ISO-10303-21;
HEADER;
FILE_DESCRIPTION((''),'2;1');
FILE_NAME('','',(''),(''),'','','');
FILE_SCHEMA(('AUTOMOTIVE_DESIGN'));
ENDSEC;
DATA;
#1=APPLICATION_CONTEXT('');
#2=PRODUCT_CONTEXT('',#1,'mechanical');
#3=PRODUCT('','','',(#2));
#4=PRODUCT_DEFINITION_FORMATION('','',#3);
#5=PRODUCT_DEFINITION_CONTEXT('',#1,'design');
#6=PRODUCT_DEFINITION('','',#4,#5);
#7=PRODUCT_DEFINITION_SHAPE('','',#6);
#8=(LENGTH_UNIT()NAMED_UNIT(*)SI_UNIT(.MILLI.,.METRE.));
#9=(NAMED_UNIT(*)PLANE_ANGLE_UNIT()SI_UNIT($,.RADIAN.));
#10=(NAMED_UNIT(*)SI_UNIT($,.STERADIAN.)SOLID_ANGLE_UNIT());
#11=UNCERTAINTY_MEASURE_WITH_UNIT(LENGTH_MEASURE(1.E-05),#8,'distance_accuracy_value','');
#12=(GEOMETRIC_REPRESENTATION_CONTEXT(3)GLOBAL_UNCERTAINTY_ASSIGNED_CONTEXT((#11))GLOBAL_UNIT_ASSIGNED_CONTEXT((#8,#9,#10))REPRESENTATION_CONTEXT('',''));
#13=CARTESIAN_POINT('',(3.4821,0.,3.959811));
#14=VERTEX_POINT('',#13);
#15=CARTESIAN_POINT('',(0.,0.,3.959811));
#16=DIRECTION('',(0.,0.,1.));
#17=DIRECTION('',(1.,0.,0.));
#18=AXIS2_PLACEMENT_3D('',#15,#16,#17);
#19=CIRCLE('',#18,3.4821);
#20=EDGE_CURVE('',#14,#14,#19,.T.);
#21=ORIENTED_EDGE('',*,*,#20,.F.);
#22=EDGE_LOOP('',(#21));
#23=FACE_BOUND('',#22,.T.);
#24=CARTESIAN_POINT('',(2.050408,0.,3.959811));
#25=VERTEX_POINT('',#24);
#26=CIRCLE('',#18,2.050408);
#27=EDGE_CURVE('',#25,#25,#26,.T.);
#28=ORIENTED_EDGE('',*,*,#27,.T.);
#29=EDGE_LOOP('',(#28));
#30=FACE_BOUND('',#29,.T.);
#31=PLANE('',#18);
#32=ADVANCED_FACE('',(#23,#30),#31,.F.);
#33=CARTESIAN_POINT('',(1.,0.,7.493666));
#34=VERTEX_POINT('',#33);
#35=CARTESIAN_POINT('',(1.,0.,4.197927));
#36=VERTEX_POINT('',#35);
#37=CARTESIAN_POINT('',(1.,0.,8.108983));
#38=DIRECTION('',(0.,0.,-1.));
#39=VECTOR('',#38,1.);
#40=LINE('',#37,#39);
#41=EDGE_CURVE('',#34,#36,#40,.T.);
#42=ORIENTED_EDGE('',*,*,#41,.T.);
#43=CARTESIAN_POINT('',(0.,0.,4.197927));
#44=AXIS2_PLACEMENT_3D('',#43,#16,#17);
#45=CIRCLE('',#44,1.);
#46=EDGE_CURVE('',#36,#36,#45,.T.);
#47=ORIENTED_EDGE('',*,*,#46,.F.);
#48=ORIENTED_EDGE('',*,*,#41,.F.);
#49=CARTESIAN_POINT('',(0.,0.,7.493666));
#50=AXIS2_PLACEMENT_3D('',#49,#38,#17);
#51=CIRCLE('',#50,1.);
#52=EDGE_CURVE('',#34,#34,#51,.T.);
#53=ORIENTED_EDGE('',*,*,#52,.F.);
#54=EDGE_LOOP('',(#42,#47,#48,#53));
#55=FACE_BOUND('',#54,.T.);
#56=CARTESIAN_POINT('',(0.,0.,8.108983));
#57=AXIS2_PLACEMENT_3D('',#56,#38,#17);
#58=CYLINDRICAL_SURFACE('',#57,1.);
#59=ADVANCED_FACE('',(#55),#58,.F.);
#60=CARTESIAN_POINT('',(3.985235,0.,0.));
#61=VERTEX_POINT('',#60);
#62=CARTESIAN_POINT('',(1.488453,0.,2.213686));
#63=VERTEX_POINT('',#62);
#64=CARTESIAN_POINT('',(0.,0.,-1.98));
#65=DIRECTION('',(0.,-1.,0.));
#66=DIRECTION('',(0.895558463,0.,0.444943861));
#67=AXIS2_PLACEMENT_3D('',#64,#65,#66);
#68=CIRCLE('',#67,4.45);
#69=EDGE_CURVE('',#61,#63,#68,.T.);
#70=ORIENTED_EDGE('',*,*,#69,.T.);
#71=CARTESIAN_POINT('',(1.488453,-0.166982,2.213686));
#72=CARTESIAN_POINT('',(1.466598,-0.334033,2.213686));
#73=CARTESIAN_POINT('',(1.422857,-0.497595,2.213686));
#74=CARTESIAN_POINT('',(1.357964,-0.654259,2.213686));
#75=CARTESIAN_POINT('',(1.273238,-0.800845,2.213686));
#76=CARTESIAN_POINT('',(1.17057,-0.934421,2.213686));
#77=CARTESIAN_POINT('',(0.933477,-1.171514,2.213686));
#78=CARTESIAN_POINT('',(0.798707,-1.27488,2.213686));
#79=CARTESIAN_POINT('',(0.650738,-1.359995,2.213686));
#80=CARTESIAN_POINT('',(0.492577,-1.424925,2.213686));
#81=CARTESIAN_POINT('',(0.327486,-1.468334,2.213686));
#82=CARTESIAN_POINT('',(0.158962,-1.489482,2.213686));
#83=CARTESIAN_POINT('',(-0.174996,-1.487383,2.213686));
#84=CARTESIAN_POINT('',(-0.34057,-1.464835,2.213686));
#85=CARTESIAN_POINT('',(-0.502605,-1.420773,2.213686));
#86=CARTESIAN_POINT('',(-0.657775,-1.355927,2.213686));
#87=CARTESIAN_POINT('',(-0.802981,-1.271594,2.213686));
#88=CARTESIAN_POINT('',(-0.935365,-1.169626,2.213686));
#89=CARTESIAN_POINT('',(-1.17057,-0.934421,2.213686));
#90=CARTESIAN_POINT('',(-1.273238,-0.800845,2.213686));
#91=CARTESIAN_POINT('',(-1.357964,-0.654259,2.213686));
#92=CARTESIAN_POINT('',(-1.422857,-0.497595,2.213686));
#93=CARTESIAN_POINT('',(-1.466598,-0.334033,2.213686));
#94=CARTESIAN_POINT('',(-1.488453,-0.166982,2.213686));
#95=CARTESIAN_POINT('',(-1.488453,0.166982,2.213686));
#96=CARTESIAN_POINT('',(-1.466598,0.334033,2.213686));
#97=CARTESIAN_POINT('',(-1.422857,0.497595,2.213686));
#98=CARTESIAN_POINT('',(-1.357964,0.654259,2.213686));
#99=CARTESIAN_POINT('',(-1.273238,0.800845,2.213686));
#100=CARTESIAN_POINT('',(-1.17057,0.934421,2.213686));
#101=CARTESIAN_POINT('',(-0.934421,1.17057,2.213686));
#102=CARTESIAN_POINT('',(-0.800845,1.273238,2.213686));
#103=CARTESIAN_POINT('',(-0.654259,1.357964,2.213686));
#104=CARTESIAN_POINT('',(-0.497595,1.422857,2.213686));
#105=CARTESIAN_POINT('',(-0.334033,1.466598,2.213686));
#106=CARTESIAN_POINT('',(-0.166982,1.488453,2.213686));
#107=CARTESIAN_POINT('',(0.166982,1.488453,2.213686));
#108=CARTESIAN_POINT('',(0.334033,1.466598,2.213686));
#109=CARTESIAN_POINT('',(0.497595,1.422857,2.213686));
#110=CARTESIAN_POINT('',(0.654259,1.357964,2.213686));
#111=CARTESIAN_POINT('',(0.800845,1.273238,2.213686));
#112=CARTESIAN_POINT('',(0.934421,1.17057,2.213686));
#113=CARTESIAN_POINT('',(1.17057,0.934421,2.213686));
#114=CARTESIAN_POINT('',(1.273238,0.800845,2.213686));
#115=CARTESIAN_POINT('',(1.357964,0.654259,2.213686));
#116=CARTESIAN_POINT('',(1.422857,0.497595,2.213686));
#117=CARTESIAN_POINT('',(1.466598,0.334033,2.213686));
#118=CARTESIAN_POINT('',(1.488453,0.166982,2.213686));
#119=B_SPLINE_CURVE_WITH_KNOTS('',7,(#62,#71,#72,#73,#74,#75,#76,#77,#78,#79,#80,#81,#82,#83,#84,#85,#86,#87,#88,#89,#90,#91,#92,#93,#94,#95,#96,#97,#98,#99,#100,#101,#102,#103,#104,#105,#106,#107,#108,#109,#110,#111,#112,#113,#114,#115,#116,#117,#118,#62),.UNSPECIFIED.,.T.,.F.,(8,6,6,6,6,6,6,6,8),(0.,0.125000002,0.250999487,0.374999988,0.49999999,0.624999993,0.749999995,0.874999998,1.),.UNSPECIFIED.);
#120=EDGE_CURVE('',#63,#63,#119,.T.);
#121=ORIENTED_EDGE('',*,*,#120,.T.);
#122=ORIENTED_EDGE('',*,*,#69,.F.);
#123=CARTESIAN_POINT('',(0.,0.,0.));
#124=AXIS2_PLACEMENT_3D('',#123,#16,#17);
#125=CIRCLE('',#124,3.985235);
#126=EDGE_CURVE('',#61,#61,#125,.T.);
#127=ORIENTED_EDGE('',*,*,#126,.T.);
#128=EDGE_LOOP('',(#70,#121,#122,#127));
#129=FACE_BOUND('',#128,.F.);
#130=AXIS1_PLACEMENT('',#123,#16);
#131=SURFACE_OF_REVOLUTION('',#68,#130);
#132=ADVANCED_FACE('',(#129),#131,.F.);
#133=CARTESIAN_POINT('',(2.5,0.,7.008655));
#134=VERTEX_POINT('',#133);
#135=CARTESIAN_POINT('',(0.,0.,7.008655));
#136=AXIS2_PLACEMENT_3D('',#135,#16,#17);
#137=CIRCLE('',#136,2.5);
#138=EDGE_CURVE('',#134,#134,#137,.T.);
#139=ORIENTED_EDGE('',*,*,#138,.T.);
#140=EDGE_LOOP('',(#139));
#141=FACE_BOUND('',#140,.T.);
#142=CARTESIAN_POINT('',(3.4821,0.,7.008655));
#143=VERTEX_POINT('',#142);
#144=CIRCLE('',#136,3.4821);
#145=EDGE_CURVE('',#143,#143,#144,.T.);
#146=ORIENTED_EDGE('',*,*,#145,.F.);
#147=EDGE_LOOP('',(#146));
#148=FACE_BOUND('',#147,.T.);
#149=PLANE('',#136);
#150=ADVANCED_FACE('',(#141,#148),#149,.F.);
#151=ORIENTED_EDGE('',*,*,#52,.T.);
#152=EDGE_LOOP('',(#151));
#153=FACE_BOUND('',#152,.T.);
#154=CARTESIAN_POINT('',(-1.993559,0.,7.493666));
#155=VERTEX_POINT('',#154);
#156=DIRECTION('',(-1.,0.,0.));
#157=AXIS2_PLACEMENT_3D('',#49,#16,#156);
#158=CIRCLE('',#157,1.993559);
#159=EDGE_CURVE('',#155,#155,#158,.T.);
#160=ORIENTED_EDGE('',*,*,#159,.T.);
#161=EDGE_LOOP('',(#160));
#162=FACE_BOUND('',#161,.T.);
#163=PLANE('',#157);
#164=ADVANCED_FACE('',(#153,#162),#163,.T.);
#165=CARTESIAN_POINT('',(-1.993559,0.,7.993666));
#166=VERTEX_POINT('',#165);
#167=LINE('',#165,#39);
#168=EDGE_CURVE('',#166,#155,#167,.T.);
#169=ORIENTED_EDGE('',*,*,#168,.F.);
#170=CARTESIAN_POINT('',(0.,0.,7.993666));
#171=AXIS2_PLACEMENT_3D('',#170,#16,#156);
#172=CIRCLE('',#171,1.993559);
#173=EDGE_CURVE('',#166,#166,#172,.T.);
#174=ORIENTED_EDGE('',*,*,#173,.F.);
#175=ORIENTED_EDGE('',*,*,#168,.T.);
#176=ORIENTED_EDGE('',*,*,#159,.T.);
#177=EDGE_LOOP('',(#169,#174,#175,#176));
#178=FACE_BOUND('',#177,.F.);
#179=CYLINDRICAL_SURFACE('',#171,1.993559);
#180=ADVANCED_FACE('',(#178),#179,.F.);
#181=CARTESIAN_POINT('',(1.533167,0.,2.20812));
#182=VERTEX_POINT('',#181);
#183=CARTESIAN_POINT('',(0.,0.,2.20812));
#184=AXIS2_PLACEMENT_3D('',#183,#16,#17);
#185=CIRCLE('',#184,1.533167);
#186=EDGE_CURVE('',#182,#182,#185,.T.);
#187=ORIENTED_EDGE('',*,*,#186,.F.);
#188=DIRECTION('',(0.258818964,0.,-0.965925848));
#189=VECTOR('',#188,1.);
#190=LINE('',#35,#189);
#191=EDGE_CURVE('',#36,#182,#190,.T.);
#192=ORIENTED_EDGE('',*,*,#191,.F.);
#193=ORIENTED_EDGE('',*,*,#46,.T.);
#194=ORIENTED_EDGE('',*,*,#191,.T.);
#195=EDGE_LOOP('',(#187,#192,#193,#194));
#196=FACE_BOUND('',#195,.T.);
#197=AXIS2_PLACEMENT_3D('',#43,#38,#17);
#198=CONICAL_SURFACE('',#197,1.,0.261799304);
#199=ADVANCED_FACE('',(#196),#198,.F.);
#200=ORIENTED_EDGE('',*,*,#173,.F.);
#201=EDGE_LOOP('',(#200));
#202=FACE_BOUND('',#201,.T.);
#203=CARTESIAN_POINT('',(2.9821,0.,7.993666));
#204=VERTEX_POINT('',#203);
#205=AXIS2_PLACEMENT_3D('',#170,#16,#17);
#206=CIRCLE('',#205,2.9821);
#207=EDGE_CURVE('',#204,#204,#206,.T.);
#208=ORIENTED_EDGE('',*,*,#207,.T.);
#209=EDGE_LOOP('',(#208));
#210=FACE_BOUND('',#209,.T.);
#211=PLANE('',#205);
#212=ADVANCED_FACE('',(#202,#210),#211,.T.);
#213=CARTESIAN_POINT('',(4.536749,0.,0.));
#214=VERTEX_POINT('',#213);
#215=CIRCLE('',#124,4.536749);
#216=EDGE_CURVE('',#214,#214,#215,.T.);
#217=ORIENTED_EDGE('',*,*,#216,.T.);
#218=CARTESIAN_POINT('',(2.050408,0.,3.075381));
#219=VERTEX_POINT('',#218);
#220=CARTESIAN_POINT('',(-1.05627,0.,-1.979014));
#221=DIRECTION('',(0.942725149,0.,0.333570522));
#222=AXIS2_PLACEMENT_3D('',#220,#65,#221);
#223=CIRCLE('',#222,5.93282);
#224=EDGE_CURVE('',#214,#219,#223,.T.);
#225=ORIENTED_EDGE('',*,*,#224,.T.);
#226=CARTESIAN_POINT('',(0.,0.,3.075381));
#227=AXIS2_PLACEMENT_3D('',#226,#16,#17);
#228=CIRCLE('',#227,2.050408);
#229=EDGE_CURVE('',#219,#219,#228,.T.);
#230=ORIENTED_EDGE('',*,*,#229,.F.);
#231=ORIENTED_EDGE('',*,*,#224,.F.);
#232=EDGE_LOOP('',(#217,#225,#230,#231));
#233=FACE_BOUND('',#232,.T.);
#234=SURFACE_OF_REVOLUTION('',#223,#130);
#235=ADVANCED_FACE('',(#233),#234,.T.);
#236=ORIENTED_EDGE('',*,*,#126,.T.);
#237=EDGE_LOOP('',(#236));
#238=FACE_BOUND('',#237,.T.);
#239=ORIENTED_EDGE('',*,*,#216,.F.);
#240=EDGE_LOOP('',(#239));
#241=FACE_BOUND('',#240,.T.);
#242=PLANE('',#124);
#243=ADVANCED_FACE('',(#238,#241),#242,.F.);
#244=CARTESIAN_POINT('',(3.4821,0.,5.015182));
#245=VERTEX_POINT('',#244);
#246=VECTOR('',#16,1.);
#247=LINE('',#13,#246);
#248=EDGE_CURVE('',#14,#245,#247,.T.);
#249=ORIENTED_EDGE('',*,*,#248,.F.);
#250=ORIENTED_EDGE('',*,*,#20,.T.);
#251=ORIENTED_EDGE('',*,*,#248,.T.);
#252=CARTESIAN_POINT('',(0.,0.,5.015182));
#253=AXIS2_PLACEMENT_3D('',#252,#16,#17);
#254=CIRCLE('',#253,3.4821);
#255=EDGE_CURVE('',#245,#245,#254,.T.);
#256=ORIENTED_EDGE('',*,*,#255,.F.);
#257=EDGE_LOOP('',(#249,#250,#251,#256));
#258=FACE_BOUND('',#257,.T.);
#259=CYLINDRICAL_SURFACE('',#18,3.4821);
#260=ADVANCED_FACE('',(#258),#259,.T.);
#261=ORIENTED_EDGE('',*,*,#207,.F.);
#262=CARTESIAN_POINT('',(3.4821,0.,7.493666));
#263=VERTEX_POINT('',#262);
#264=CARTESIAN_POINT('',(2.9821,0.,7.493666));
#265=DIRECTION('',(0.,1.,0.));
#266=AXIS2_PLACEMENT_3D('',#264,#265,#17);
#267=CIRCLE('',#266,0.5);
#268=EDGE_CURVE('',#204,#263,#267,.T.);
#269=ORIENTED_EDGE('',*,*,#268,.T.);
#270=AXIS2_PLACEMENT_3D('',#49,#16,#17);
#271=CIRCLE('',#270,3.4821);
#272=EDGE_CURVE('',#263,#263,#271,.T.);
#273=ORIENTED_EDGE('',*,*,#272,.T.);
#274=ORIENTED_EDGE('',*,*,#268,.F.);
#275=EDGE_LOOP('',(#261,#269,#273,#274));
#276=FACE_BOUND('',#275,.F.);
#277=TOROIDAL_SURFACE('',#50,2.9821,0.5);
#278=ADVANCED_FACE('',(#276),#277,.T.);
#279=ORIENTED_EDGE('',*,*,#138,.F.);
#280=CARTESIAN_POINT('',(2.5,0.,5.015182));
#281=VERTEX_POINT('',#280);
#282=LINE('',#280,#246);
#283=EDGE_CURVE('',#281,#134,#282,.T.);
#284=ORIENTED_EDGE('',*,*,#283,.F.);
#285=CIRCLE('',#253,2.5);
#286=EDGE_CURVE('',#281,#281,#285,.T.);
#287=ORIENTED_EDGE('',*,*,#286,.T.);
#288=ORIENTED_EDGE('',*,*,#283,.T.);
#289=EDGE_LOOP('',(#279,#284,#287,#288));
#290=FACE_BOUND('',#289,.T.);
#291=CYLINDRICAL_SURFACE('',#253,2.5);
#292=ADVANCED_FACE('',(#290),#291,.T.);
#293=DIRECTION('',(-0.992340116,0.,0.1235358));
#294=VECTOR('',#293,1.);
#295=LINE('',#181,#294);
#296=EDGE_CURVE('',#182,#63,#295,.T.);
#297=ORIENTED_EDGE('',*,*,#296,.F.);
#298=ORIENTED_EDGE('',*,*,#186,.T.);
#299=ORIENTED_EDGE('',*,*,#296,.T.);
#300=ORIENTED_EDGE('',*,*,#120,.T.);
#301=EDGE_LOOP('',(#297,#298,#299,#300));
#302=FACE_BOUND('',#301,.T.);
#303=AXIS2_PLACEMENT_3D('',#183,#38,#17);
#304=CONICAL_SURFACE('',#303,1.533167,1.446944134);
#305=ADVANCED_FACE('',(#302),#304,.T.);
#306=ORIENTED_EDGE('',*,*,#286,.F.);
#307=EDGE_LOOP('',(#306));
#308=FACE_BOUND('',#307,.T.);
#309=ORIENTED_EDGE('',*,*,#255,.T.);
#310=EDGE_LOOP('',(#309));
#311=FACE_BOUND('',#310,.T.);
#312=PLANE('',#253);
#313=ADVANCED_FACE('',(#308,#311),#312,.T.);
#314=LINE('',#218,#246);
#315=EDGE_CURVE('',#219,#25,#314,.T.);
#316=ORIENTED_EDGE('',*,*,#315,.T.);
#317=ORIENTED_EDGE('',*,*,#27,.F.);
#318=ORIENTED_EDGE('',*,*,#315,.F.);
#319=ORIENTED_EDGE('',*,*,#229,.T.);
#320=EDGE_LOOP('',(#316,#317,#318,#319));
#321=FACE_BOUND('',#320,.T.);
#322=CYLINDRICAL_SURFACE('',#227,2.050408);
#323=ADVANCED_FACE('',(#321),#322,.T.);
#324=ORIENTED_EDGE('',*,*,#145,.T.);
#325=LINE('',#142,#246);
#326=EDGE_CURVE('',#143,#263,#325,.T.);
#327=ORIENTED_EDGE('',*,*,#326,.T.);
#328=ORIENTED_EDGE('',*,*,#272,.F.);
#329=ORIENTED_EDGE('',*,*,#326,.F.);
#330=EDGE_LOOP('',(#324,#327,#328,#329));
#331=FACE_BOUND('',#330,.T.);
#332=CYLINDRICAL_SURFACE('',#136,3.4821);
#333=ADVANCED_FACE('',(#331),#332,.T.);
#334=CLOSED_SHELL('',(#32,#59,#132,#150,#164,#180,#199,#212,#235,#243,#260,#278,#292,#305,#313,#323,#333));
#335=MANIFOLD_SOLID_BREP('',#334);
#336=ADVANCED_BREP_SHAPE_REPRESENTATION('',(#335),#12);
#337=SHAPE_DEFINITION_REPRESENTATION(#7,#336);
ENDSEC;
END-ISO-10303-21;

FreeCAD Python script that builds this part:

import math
import FreeCAD as App
import Part
import Sketcher
Q = App.Units.Quantity


def edges_at(feature, points):
    """Names of the edges that pass closest to the given points."""
    edges = feature.Shape.Edges
    near = lambda p: min(range(len(edges)), key=lambda i: edges[i].distToShape(Part.Vertex(*p))[0])
    return sorted({f"Edge{near(p) + 1}" for p in points})


def add_polygon(sketch, points):
    """Adds a closed chain of lines whose ends are joined by coincident constraints."""
    first, n = sketch.GeometryCount, len(points)
    for a, b in zip(points, points[1:] + points[:1]):
        sketch.addGeometry(Part.LineSegment(App.Vector(*a, 0), App.Vector(*b, 0)), False)
    for i in range(n):
        sketch.addConstraint(Sketcher.Constraint("Coincident", first + i, 2, first + (i + 1) % n, 1))

doc = App.newDocument("Part")
params = doc.addObject("Spreadsheet::Sheet", "Params")
for row, (alias, value) in enumerate([
    ("sketch1_radius", "4.45 mm"),
    ("revolution_angle", "360 deg"),
    ("sketch2_width", "1 mm"),
    ("sketch2_height", "5.71 mm"),
    ("sketch2_length", "2.06 mm"),
    ("groove_angle", "360 deg"),
    ("pocket1_length", "0.5 mm"),
    ("fillet_radius", "0.5 mm"),
], start=1):
    params.set(f"A{row}", alias)
    params.set(f"B{row}", "=" + value)
    params.setAlias(f"B{row}", alias)

body = doc.addObject("PartDesign::Body", "Body")

sketch1 = body.newObject("Sketcher::SketchObject", "Sketch")
sketch1.AttachmentSupport = (doc.getObject("XZ_Plane"), [""])
sketch1.MapMode = "FlatFace"
sketch1.addGeometry([
    Part.ArcOfCircle(Part.Circle(App.Vector(0, -2, 0), App.Vector(0, 0, 1), 4.5), math.radians(26), math.radians(90)),
    Part.LineSegment(App.Vector(4, 0, 0), App.Vector(4.5, 0, 0)),
    Part.ArcOfCircle(Part.Circle(App.Vector(-1.1, -2, 0), App.Vector(0, 0, 1), 5.9), math.radians(19), math.radians(58)),
    Part.LineSegment(App.Vector(2.1, 3.1, 0), App.Vector(2.1, 4, 0)),
    Part.LineSegment(App.Vector(2.1, 4, 0), App.Vector(3.5, 4, 0)),
    Part.LineSegment(App.Vector(3.5, 4, 0), App.Vector(3.5, 5, 0)),
    Part.LineSegment(App.Vector(3.5, 5, 0), App.Vector(2.5, 5, 0)),
    Part.LineSegment(App.Vector(2.5, 5, 0), App.Vector(2.5, 7, 0)),
    Part.LineSegment(App.Vector(2.5, 7, 0), App.Vector(3.5, 7, 0)),
    Part.LineSegment(App.Vector(3.5, 7, 0), App.Vector(3.5, 8, 0)),
    Part.LineSegment(App.Vector(3.5, 8, 0), App.Vector(0, 8, 0)),
    Part.LineSegment(App.Vector(0, 8, 0), App.Vector(0, 2.5, 0)),
], False)
sketch1.addConstraint([
    Sketcher.Constraint("Coincident", 0, 1, 1, 1),
    Sketcher.Constraint("Coincident", 1, 2, 2, 1),
    Sketcher.Constraint("Coincident", 2, 2, 3, 1),
    Sketcher.Constraint("Coincident", 3, 2, 4, 1),
    Sketcher.Constraint("Coincident", 4, 2, 5, 1),
    Sketcher.Constraint("Coincident", 5, 2, 6, 1),
    Sketcher.Constraint("Coincident", 6, 2, 7, 1),
    Sketcher.Constraint("Coincident", 7, 2, 8, 1),
    Sketcher.Constraint("Coincident", 8, 2, 9, 1),
    Sketcher.Constraint("Coincident", 9, 2, 10, 1),
    Sketcher.Constraint("Coincident", 10, 2, 11, 1),
    Sketcher.Constraint("Coincident", 11, 2, 0, 2),
    Sketcher.Constraint("Horizontal", 1),
    Sketcher.Constraint("Vertical", 3),
    Sketcher.Constraint("Horizontal", 4),
    Sketcher.Constraint("Vertical", 5),
    Sketcher.Constraint("Horizontal", 6),
    Sketcher.Constraint("Vertical", 7),
    Sketcher.Constraint("Horizontal", 8),
    Sketcher.Constraint("Vertical", 9),
    Sketcher.Constraint("Horizontal", 10),
    Sketcher.Constraint("Vertical", 11),
    Sketcher.Constraint("PointOnObject", 0, 3, -2),
    Sketcher.Constraint("PointOnObject", 0, 1, -1),
    Sketcher.Constraint("PointOnObject", 10, 2, -2),
    Sketcher.Constraint("Vertical", 5, 2, 8, 2),
    Sketcher.Constraint("Radius", 0, Q("4.45 mm")),
    Sketcher.Constraint("DistanceX", -1, 1, 6, 2, Q("2.5 mm")),
    Sketcher.Constraint("DistanceY", 0, 3, -1, 1, Q("1.98 mm")),
    Sketcher.Constraint("Radius", 2, Q("5.93282 mm")),
    Sketcher.Constraint("DistanceX", 6, 2, 6, 1, Q("0.9821 mm")),
    Sketcher.Constraint("DistanceY", 3, 1, 3, 2, Q("0.88443 mm")),
    Sketcher.Constraint("DistanceY", 5, 1, 5, 2, Q("1.055371 mm")),
    Sketcher.Constraint("DistanceY", 9, 1, 9, 2, Q("0.985011 mm")),
    Sketcher.Constraint("DistanceX", 1, 1, 1, 2, Q("0.551514 mm")),
    Sketcher.Constraint("DistanceX", 4, 1, 4, 2, Q("1.431692 mm")),
    Sketcher.Constraint("DistanceY", 7, 1, 7, 2, Q("1.993473 mm")),
    Sketcher.Constraint("DistanceY", 11, 2, 11, 1, Q("5.523666 mm")),
])
sketch1.setExpression("Constraints[26]", "Params.sketch1_radius")
revolution = body.newObject("PartDesign::Revolution", "Revolution")
revolution.Profile = sketch1
revolution.ReferenceAxis = (sketch1, ["V_Axis"])
revolution.setExpression("Angle", "Params.revolution_angle")

sketch2 = body.newObject("Sketcher::SketchObject", "Sketch001")
sketch2.AttachmentSupport = (doc.getObject("XZ_Plane"), [""])
sketch2.MapMode = "FlatFace"
add_polygon(sketch2, [(1, 4.2), (1, 8.1), (0, 8.1), (0, 2.4), (1.5, 2.2)])
sketch2.addConstraint([
    Sketcher.Constraint("Vertical", 0),
    Sketcher.Constraint("Horizontal", 1),
    Sketcher.Constraint("Vertical", 2),
    Sketcher.Constraint("PointOnObject", 1, 2, -2),
    Sketcher.Constraint("DistanceX", 1, 2, 1, 1, Q("1 mm")),
    Sketcher.Constraint("Angle", 4, Q("104.999995 deg")),
    Sketcher.Constraint("DistanceY", 2, 2, 2, 1, Q("5.71 mm")),
    Sketcher.Constraint("Distance", 4, Q("2.06 mm")),
    Sketcher.Constraint("Distance", 3, Q("1.545002 mm")),
    Sketcher.Constraint("DistanceY", -1, 1, 3, 2, Q("2.20812 mm")),
])
sketch2.setExpression("Constraints[9]", "Params.sketch2_width")
sketch2.setExpression("Constraints[11]", "Params.sketch2_height")
sketch2.setExpression("Constraints[12]", "Params.sketch2_length")
groove = body.newObject("PartDesign::Groove", "Groove")
groove.Profile = sketch2
groove.ReferenceAxis = (sketch2, ["V_Axis"])
groove.setExpression("Angle", "Params.groove_angle")

sketch3 = body.newObject("Sketcher::SketchObject", "Sketch002")
sketch3.AttachmentSupport = (doc.getObject("XY_Plane"), [""])
sketch3.MapMode = "FlatFace"
sketch3.AttachmentOffset = App.Placement(App.Vector(0, 0, 7.993666), App.Rotation())
sketch3.addGeometry(Part.Circle(App.Vector(0, 0, 0), App.Vector(0, 0, 1), 2), False)
sketch3.addConstraint([
    Sketcher.Constraint("Coincident", 0, 3, -1, 1),
    Sketcher.Constraint("Diameter", 0, Q("3.987118 mm")),
])
pocket1 = body.newObject("PartDesign::Pocket", "Pocket")
pocket1.Profile = sketch3
pocket1.setExpression("Length", "Params.pocket1_length")
doc.recompute()

fillet = body.newObject("PartDesign::Fillet", "Fillet")
fillet.Base = (pocket1, edges_at(pocket1, [(-3.482, 0, 7.994)]))
fillet.setExpression("Radius", "Params.fillet_radius")

doc.recompute()
